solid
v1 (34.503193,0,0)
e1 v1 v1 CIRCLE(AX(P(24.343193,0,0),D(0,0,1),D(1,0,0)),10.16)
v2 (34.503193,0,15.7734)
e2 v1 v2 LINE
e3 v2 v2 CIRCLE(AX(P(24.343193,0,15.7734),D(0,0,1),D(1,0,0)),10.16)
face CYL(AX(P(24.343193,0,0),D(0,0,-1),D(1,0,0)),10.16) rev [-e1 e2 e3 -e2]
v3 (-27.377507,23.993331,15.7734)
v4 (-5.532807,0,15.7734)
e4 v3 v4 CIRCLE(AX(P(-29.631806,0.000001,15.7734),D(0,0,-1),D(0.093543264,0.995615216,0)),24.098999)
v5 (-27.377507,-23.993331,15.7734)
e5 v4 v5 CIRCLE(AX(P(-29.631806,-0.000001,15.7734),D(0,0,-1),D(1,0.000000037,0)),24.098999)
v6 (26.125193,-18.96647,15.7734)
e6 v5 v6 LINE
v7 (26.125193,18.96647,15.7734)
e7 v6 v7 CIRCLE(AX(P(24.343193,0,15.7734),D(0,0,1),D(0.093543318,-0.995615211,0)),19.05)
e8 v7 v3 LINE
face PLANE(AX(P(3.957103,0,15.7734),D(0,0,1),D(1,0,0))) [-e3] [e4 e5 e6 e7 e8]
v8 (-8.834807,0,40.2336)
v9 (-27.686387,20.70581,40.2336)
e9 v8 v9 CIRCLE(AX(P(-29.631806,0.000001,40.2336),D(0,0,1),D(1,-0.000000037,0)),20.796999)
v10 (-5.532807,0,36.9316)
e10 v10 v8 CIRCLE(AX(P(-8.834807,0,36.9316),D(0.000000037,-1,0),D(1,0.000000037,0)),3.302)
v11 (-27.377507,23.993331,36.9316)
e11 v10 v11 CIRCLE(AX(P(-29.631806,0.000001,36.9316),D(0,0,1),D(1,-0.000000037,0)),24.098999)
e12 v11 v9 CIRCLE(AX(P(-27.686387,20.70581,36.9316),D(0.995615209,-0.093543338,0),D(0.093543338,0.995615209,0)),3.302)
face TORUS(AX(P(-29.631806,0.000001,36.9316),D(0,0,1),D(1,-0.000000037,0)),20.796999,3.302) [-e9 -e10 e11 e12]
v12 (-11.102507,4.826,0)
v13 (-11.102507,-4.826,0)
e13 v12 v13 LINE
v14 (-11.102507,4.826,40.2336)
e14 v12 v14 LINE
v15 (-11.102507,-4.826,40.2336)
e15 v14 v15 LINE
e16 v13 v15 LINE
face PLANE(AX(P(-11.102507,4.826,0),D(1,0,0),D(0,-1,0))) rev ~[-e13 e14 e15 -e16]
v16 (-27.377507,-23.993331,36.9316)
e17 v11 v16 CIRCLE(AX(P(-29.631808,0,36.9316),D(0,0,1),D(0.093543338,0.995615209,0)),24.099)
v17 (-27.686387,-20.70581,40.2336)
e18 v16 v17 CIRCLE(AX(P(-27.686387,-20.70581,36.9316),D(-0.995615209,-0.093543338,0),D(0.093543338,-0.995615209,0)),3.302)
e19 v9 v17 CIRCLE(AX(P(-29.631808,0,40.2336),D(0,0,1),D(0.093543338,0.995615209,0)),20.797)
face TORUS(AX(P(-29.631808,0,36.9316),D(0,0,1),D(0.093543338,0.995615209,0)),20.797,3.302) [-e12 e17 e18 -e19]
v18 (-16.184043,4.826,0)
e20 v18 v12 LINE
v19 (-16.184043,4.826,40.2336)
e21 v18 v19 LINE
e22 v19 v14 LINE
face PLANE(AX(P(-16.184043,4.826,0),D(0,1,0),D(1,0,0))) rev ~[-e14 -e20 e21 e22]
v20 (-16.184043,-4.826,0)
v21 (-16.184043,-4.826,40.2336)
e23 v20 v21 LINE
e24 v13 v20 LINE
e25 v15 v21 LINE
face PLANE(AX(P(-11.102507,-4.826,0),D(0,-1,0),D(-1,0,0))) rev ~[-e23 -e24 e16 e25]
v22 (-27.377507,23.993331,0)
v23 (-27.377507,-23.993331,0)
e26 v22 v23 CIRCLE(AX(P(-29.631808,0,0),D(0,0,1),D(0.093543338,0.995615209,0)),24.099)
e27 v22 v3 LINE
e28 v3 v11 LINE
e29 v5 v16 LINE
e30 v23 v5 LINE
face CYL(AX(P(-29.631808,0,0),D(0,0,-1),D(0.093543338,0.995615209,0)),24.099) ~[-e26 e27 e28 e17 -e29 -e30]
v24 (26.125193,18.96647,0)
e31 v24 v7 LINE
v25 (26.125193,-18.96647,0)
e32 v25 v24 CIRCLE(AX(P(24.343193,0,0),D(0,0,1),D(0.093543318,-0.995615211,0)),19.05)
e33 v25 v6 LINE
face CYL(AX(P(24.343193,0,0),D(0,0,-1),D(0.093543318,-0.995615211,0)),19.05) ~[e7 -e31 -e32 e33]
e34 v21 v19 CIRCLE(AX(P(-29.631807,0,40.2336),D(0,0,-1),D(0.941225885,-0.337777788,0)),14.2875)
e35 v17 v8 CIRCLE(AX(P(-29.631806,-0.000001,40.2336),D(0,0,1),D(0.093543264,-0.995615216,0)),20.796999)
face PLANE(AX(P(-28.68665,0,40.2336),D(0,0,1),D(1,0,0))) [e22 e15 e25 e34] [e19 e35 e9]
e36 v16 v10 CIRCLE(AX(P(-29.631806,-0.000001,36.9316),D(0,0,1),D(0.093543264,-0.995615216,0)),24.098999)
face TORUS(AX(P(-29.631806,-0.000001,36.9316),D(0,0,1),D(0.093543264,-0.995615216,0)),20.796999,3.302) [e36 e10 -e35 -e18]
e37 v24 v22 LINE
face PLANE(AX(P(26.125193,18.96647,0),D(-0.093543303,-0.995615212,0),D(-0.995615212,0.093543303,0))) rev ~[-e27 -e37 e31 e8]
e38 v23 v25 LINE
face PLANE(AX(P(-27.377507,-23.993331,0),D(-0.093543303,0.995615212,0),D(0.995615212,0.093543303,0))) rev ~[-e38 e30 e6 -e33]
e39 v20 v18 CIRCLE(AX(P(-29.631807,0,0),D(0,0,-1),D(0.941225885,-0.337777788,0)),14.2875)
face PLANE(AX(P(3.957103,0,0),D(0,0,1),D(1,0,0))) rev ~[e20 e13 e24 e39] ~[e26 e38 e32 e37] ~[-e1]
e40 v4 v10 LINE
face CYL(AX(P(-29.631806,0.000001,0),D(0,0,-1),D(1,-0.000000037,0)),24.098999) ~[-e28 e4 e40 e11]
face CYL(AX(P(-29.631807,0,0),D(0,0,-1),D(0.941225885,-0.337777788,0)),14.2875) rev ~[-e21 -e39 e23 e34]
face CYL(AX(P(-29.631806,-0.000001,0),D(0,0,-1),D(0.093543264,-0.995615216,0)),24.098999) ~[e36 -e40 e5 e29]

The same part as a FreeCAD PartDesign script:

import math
import FreeCAD as App
import Part
import Sketcher
from FreeCAD import Vector
Q = App.Units.Quantity


def edges_at(feature, points):
    """Names of the edges that pass closest to the given points."""
    edges = feature.Shape.Edges
    near = lambda p: min(range(len(edges)), key=lambda i: edges[i].distToShape(Part.Vertex(*p))[0])
    return sorted({f"Edge{near(p) + 1}" for p in points})

doc = App.newDocument("Part")
body = doc.addObject("PartDesign::Body", "Body")

# Sketch on XY plane
sketch1 = doc.addObject("Sketcher::SketchObject", "Sketch")
body.addObject(sketch1)
sketch1.AttachmentSupport = (doc.XY_Plane, [""])
sketch1.MapMode = "FlatFace"
sketch1.addGeometry(Part.ArcOfCircle(Part.Circle(Vector(-30, 0, 0), Vector(0, 0, 1), 24), math.radians(-85), math.radians(0)), False)
sketch1.addGeometry(Part.ArcOfCircle(Part.Circle(Vector(-30, 0, 0), Vector(0, 0, 1), 24), math.radians(0), math.radians(85)), False)
sketch1.addGeometry(Part.ArcOfCircle(Part.Circle(Vector(-30, 0, 0), Vector(0, 0, 1), 24), math.radians(85), math.radians(275)), False)
sketch1.addGeometry(Part.LineSegment(Vector(-11, -5, 0), Vector(-16, -5, 0)), False)
sketch1.addGeometry(Part.ArcOfCircle(Part.Circle(Vector(-30, 0, 0), Vector(0, 0, 1), 14), math.radians(20), math.radians(340)), False)
sketch1.addGeometry(Part.LineSegment(Vector(-16, 5, 0), Vector(-11, 5, 0)), False)
sketch1.addGeometry(Part.LineSegment(Vector(-11, 5, 0), Vector(-11, -5, 0)), False)
sketch1.addConstraint(Sketcher.Constraint("Tangent", 0, 2, 1, 1))
sketch1.addConstraint(Sketcher.Constraint("Tangent", 1, 2, 2, 1))
sketch1.addConstraint(Sketcher.Constraint("Tangent", 2, 2, 0, 1))
sketch1.addConstraint(Sketcher.Constraint("Coincident", 3, 2, 4, 2))
sketch1.addConstraint(Sketcher.Constraint("Coincident", 4, 1, 5, 1))
sketch1.addConstraint(Sketcher.Constraint("Coincident", 5, 2, 6, 1))
sketch1.addConstraint(Sketcher.Constraint("Coincident", 6, 2, 3, 1))
sketch1.addConstraint(Sketcher.Constraint("Horizontal", 3))
sketch1.addConstraint(Sketcher.Constraint("Horizontal", 5))
sketch1.addConstraint(Sketcher.Constraint("Vertical", 6))
sketch1.addConstraint(Sketcher.Constraint("Coincident", 4, 3, 0, 3))
sketch1.addConstraint(Sketcher.Constraint("Symmetric", 1, 2, 2, 2, -1))
sketch1.addConstraint(Sketcher.Constraint("PointOnObject", 0, 2, -1))
sketch1.addConstraint(Sketcher.Constraint("Vertical", 3, 2, 4, 1))
sketch1.addConstraint(Sketcher.Constraint("Radius", 4, Q("0.5625 in")))
sketch1.addConstraint(Sketcher.Constraint("DistanceY", 6, 2, 6, 1, Q("0.38 in")))
sketch1.addConstraint(Sketcher.Constraint("Radius", 0, 24.098999))
sketch1.addConstraint(Sketcher.Constraint("DistanceX", 1, 3, 5, 2, Q("0.7295 in")))
sketch1.addConstraint(Sketcher.Constraint("DistanceX", 1, 3, 1, 2, 2.254299))
sketch1.addConstraint(Sketcher.Constraint("DistanceX", 0, 3, -1, 1, 29.631806))
pad1 = doc.addObject("PartDesign::Pad", "Pad")
body.addObject(pad1)
pad1.Profile = sketch1
pad1.Length = Q("1.584 in")

# Sketch on XY plane
sketch2 = doc.addObject("Sketcher::SketchObject", "Sketch001")
body.addObject(sketch2)
sketch2.AttachmentSupport = (doc.XY_Plane, [""])
sketch2.MapMode = "FlatFace"
sketch2.addGeometry(Part.ArcOfCircle(Part.Circle(Vector(-30, 0, 0), Vector(0, 0, 1), 24), math.radians(0), math.radians(85)), False)
sketch2.addGeometry(Part.ArcOfCircle(Part.Circle(Vector(-30, 0, 0), Vector(0, 0, 1), 24), math.radians(-85), math.radians(0)), False)
sketch2.addGeometry(Part.LineSegment(Vector(-27, -24, 0), Vector(26, -19, 0)), False)
sketch2.addGeometry(Part.ArcOfCircle(Part.Circle(Vector(24, 0, 0), Vector(0, 0, 1), 19), math.radians(-85), math.radians(85)), False)
sketch2.addGeometry(Part.LineSegment(Vector(26, 19, 0), Vector(-27, 24, 0)), False)
sketch2.addGeometry(Part.Circle(Vector(24, 0, 0), Vector(0, 0, 1), 10), False)
sketch2.addConstraint(Sketcher.Constraint("Tangent", 0, 1, 1, 2))
sketch2.addConstraint(Sketcher.Constraint("Tangent", 1, 1, 2, 1))
sketch2.addConstraint(Sketcher.Constraint("Tangent", 2, 2, 3, 1))
sketch2.addConstraint(Sketcher.Constraint("Tangent", 3, 2, 4, 1))
sketch2.addConstraint(Sketcher.Constraint("Tangent", 4, 2, 0, 2))
sketch2.addConstraint(Sketcher.Constraint("Coincident", 5, 3, 3, 3))
sketch2.addConstraint(Sketcher.Constraint("Equal", 0, 1))
sketch2.addConstraint(Sketcher.Constraint("Symmetric", 2, 2, 3, 2, -1))
sketch2.addConstraint(Sketcher.Constraint("PointOnObject", 0, 1, -1))
sketch2.addConstraint(Sketcher.Constraint("Diameter", 5, Q("0.8 in")))
sketch2.addConstraint(Sketcher.Constraint("Radius", 3, Q("0.75 in")))
sketch2.addConstraint(Sketcher.Constraint("Radius", 0, 24.098999))
sketch2.addConstraint(Sketcher.Constraint("DistanceX", 0, 3, 3, 3, Q("2.125 in")))
sketch2.addConstraint(Sketcher.Constraint("DistanceX", 0, 3, -1, 1, 29.631806))
pad2 = doc.addObject("PartDesign::Pad", "Pad001")
body.addObject(pad2)
pad2.Profile = sketch2
pad2.Length = Q("0.621 in")
doc.recompute()

fillet = doc.addObject("PartDesign::Fillet", "Fillet")
body.addObject(fillet)
fillet.Base = (pad2, edges_at(pad2, [(-53.731, 0, 40.234)]))
fillet.Radius = Q("0.13 in")

doc.recompute()
